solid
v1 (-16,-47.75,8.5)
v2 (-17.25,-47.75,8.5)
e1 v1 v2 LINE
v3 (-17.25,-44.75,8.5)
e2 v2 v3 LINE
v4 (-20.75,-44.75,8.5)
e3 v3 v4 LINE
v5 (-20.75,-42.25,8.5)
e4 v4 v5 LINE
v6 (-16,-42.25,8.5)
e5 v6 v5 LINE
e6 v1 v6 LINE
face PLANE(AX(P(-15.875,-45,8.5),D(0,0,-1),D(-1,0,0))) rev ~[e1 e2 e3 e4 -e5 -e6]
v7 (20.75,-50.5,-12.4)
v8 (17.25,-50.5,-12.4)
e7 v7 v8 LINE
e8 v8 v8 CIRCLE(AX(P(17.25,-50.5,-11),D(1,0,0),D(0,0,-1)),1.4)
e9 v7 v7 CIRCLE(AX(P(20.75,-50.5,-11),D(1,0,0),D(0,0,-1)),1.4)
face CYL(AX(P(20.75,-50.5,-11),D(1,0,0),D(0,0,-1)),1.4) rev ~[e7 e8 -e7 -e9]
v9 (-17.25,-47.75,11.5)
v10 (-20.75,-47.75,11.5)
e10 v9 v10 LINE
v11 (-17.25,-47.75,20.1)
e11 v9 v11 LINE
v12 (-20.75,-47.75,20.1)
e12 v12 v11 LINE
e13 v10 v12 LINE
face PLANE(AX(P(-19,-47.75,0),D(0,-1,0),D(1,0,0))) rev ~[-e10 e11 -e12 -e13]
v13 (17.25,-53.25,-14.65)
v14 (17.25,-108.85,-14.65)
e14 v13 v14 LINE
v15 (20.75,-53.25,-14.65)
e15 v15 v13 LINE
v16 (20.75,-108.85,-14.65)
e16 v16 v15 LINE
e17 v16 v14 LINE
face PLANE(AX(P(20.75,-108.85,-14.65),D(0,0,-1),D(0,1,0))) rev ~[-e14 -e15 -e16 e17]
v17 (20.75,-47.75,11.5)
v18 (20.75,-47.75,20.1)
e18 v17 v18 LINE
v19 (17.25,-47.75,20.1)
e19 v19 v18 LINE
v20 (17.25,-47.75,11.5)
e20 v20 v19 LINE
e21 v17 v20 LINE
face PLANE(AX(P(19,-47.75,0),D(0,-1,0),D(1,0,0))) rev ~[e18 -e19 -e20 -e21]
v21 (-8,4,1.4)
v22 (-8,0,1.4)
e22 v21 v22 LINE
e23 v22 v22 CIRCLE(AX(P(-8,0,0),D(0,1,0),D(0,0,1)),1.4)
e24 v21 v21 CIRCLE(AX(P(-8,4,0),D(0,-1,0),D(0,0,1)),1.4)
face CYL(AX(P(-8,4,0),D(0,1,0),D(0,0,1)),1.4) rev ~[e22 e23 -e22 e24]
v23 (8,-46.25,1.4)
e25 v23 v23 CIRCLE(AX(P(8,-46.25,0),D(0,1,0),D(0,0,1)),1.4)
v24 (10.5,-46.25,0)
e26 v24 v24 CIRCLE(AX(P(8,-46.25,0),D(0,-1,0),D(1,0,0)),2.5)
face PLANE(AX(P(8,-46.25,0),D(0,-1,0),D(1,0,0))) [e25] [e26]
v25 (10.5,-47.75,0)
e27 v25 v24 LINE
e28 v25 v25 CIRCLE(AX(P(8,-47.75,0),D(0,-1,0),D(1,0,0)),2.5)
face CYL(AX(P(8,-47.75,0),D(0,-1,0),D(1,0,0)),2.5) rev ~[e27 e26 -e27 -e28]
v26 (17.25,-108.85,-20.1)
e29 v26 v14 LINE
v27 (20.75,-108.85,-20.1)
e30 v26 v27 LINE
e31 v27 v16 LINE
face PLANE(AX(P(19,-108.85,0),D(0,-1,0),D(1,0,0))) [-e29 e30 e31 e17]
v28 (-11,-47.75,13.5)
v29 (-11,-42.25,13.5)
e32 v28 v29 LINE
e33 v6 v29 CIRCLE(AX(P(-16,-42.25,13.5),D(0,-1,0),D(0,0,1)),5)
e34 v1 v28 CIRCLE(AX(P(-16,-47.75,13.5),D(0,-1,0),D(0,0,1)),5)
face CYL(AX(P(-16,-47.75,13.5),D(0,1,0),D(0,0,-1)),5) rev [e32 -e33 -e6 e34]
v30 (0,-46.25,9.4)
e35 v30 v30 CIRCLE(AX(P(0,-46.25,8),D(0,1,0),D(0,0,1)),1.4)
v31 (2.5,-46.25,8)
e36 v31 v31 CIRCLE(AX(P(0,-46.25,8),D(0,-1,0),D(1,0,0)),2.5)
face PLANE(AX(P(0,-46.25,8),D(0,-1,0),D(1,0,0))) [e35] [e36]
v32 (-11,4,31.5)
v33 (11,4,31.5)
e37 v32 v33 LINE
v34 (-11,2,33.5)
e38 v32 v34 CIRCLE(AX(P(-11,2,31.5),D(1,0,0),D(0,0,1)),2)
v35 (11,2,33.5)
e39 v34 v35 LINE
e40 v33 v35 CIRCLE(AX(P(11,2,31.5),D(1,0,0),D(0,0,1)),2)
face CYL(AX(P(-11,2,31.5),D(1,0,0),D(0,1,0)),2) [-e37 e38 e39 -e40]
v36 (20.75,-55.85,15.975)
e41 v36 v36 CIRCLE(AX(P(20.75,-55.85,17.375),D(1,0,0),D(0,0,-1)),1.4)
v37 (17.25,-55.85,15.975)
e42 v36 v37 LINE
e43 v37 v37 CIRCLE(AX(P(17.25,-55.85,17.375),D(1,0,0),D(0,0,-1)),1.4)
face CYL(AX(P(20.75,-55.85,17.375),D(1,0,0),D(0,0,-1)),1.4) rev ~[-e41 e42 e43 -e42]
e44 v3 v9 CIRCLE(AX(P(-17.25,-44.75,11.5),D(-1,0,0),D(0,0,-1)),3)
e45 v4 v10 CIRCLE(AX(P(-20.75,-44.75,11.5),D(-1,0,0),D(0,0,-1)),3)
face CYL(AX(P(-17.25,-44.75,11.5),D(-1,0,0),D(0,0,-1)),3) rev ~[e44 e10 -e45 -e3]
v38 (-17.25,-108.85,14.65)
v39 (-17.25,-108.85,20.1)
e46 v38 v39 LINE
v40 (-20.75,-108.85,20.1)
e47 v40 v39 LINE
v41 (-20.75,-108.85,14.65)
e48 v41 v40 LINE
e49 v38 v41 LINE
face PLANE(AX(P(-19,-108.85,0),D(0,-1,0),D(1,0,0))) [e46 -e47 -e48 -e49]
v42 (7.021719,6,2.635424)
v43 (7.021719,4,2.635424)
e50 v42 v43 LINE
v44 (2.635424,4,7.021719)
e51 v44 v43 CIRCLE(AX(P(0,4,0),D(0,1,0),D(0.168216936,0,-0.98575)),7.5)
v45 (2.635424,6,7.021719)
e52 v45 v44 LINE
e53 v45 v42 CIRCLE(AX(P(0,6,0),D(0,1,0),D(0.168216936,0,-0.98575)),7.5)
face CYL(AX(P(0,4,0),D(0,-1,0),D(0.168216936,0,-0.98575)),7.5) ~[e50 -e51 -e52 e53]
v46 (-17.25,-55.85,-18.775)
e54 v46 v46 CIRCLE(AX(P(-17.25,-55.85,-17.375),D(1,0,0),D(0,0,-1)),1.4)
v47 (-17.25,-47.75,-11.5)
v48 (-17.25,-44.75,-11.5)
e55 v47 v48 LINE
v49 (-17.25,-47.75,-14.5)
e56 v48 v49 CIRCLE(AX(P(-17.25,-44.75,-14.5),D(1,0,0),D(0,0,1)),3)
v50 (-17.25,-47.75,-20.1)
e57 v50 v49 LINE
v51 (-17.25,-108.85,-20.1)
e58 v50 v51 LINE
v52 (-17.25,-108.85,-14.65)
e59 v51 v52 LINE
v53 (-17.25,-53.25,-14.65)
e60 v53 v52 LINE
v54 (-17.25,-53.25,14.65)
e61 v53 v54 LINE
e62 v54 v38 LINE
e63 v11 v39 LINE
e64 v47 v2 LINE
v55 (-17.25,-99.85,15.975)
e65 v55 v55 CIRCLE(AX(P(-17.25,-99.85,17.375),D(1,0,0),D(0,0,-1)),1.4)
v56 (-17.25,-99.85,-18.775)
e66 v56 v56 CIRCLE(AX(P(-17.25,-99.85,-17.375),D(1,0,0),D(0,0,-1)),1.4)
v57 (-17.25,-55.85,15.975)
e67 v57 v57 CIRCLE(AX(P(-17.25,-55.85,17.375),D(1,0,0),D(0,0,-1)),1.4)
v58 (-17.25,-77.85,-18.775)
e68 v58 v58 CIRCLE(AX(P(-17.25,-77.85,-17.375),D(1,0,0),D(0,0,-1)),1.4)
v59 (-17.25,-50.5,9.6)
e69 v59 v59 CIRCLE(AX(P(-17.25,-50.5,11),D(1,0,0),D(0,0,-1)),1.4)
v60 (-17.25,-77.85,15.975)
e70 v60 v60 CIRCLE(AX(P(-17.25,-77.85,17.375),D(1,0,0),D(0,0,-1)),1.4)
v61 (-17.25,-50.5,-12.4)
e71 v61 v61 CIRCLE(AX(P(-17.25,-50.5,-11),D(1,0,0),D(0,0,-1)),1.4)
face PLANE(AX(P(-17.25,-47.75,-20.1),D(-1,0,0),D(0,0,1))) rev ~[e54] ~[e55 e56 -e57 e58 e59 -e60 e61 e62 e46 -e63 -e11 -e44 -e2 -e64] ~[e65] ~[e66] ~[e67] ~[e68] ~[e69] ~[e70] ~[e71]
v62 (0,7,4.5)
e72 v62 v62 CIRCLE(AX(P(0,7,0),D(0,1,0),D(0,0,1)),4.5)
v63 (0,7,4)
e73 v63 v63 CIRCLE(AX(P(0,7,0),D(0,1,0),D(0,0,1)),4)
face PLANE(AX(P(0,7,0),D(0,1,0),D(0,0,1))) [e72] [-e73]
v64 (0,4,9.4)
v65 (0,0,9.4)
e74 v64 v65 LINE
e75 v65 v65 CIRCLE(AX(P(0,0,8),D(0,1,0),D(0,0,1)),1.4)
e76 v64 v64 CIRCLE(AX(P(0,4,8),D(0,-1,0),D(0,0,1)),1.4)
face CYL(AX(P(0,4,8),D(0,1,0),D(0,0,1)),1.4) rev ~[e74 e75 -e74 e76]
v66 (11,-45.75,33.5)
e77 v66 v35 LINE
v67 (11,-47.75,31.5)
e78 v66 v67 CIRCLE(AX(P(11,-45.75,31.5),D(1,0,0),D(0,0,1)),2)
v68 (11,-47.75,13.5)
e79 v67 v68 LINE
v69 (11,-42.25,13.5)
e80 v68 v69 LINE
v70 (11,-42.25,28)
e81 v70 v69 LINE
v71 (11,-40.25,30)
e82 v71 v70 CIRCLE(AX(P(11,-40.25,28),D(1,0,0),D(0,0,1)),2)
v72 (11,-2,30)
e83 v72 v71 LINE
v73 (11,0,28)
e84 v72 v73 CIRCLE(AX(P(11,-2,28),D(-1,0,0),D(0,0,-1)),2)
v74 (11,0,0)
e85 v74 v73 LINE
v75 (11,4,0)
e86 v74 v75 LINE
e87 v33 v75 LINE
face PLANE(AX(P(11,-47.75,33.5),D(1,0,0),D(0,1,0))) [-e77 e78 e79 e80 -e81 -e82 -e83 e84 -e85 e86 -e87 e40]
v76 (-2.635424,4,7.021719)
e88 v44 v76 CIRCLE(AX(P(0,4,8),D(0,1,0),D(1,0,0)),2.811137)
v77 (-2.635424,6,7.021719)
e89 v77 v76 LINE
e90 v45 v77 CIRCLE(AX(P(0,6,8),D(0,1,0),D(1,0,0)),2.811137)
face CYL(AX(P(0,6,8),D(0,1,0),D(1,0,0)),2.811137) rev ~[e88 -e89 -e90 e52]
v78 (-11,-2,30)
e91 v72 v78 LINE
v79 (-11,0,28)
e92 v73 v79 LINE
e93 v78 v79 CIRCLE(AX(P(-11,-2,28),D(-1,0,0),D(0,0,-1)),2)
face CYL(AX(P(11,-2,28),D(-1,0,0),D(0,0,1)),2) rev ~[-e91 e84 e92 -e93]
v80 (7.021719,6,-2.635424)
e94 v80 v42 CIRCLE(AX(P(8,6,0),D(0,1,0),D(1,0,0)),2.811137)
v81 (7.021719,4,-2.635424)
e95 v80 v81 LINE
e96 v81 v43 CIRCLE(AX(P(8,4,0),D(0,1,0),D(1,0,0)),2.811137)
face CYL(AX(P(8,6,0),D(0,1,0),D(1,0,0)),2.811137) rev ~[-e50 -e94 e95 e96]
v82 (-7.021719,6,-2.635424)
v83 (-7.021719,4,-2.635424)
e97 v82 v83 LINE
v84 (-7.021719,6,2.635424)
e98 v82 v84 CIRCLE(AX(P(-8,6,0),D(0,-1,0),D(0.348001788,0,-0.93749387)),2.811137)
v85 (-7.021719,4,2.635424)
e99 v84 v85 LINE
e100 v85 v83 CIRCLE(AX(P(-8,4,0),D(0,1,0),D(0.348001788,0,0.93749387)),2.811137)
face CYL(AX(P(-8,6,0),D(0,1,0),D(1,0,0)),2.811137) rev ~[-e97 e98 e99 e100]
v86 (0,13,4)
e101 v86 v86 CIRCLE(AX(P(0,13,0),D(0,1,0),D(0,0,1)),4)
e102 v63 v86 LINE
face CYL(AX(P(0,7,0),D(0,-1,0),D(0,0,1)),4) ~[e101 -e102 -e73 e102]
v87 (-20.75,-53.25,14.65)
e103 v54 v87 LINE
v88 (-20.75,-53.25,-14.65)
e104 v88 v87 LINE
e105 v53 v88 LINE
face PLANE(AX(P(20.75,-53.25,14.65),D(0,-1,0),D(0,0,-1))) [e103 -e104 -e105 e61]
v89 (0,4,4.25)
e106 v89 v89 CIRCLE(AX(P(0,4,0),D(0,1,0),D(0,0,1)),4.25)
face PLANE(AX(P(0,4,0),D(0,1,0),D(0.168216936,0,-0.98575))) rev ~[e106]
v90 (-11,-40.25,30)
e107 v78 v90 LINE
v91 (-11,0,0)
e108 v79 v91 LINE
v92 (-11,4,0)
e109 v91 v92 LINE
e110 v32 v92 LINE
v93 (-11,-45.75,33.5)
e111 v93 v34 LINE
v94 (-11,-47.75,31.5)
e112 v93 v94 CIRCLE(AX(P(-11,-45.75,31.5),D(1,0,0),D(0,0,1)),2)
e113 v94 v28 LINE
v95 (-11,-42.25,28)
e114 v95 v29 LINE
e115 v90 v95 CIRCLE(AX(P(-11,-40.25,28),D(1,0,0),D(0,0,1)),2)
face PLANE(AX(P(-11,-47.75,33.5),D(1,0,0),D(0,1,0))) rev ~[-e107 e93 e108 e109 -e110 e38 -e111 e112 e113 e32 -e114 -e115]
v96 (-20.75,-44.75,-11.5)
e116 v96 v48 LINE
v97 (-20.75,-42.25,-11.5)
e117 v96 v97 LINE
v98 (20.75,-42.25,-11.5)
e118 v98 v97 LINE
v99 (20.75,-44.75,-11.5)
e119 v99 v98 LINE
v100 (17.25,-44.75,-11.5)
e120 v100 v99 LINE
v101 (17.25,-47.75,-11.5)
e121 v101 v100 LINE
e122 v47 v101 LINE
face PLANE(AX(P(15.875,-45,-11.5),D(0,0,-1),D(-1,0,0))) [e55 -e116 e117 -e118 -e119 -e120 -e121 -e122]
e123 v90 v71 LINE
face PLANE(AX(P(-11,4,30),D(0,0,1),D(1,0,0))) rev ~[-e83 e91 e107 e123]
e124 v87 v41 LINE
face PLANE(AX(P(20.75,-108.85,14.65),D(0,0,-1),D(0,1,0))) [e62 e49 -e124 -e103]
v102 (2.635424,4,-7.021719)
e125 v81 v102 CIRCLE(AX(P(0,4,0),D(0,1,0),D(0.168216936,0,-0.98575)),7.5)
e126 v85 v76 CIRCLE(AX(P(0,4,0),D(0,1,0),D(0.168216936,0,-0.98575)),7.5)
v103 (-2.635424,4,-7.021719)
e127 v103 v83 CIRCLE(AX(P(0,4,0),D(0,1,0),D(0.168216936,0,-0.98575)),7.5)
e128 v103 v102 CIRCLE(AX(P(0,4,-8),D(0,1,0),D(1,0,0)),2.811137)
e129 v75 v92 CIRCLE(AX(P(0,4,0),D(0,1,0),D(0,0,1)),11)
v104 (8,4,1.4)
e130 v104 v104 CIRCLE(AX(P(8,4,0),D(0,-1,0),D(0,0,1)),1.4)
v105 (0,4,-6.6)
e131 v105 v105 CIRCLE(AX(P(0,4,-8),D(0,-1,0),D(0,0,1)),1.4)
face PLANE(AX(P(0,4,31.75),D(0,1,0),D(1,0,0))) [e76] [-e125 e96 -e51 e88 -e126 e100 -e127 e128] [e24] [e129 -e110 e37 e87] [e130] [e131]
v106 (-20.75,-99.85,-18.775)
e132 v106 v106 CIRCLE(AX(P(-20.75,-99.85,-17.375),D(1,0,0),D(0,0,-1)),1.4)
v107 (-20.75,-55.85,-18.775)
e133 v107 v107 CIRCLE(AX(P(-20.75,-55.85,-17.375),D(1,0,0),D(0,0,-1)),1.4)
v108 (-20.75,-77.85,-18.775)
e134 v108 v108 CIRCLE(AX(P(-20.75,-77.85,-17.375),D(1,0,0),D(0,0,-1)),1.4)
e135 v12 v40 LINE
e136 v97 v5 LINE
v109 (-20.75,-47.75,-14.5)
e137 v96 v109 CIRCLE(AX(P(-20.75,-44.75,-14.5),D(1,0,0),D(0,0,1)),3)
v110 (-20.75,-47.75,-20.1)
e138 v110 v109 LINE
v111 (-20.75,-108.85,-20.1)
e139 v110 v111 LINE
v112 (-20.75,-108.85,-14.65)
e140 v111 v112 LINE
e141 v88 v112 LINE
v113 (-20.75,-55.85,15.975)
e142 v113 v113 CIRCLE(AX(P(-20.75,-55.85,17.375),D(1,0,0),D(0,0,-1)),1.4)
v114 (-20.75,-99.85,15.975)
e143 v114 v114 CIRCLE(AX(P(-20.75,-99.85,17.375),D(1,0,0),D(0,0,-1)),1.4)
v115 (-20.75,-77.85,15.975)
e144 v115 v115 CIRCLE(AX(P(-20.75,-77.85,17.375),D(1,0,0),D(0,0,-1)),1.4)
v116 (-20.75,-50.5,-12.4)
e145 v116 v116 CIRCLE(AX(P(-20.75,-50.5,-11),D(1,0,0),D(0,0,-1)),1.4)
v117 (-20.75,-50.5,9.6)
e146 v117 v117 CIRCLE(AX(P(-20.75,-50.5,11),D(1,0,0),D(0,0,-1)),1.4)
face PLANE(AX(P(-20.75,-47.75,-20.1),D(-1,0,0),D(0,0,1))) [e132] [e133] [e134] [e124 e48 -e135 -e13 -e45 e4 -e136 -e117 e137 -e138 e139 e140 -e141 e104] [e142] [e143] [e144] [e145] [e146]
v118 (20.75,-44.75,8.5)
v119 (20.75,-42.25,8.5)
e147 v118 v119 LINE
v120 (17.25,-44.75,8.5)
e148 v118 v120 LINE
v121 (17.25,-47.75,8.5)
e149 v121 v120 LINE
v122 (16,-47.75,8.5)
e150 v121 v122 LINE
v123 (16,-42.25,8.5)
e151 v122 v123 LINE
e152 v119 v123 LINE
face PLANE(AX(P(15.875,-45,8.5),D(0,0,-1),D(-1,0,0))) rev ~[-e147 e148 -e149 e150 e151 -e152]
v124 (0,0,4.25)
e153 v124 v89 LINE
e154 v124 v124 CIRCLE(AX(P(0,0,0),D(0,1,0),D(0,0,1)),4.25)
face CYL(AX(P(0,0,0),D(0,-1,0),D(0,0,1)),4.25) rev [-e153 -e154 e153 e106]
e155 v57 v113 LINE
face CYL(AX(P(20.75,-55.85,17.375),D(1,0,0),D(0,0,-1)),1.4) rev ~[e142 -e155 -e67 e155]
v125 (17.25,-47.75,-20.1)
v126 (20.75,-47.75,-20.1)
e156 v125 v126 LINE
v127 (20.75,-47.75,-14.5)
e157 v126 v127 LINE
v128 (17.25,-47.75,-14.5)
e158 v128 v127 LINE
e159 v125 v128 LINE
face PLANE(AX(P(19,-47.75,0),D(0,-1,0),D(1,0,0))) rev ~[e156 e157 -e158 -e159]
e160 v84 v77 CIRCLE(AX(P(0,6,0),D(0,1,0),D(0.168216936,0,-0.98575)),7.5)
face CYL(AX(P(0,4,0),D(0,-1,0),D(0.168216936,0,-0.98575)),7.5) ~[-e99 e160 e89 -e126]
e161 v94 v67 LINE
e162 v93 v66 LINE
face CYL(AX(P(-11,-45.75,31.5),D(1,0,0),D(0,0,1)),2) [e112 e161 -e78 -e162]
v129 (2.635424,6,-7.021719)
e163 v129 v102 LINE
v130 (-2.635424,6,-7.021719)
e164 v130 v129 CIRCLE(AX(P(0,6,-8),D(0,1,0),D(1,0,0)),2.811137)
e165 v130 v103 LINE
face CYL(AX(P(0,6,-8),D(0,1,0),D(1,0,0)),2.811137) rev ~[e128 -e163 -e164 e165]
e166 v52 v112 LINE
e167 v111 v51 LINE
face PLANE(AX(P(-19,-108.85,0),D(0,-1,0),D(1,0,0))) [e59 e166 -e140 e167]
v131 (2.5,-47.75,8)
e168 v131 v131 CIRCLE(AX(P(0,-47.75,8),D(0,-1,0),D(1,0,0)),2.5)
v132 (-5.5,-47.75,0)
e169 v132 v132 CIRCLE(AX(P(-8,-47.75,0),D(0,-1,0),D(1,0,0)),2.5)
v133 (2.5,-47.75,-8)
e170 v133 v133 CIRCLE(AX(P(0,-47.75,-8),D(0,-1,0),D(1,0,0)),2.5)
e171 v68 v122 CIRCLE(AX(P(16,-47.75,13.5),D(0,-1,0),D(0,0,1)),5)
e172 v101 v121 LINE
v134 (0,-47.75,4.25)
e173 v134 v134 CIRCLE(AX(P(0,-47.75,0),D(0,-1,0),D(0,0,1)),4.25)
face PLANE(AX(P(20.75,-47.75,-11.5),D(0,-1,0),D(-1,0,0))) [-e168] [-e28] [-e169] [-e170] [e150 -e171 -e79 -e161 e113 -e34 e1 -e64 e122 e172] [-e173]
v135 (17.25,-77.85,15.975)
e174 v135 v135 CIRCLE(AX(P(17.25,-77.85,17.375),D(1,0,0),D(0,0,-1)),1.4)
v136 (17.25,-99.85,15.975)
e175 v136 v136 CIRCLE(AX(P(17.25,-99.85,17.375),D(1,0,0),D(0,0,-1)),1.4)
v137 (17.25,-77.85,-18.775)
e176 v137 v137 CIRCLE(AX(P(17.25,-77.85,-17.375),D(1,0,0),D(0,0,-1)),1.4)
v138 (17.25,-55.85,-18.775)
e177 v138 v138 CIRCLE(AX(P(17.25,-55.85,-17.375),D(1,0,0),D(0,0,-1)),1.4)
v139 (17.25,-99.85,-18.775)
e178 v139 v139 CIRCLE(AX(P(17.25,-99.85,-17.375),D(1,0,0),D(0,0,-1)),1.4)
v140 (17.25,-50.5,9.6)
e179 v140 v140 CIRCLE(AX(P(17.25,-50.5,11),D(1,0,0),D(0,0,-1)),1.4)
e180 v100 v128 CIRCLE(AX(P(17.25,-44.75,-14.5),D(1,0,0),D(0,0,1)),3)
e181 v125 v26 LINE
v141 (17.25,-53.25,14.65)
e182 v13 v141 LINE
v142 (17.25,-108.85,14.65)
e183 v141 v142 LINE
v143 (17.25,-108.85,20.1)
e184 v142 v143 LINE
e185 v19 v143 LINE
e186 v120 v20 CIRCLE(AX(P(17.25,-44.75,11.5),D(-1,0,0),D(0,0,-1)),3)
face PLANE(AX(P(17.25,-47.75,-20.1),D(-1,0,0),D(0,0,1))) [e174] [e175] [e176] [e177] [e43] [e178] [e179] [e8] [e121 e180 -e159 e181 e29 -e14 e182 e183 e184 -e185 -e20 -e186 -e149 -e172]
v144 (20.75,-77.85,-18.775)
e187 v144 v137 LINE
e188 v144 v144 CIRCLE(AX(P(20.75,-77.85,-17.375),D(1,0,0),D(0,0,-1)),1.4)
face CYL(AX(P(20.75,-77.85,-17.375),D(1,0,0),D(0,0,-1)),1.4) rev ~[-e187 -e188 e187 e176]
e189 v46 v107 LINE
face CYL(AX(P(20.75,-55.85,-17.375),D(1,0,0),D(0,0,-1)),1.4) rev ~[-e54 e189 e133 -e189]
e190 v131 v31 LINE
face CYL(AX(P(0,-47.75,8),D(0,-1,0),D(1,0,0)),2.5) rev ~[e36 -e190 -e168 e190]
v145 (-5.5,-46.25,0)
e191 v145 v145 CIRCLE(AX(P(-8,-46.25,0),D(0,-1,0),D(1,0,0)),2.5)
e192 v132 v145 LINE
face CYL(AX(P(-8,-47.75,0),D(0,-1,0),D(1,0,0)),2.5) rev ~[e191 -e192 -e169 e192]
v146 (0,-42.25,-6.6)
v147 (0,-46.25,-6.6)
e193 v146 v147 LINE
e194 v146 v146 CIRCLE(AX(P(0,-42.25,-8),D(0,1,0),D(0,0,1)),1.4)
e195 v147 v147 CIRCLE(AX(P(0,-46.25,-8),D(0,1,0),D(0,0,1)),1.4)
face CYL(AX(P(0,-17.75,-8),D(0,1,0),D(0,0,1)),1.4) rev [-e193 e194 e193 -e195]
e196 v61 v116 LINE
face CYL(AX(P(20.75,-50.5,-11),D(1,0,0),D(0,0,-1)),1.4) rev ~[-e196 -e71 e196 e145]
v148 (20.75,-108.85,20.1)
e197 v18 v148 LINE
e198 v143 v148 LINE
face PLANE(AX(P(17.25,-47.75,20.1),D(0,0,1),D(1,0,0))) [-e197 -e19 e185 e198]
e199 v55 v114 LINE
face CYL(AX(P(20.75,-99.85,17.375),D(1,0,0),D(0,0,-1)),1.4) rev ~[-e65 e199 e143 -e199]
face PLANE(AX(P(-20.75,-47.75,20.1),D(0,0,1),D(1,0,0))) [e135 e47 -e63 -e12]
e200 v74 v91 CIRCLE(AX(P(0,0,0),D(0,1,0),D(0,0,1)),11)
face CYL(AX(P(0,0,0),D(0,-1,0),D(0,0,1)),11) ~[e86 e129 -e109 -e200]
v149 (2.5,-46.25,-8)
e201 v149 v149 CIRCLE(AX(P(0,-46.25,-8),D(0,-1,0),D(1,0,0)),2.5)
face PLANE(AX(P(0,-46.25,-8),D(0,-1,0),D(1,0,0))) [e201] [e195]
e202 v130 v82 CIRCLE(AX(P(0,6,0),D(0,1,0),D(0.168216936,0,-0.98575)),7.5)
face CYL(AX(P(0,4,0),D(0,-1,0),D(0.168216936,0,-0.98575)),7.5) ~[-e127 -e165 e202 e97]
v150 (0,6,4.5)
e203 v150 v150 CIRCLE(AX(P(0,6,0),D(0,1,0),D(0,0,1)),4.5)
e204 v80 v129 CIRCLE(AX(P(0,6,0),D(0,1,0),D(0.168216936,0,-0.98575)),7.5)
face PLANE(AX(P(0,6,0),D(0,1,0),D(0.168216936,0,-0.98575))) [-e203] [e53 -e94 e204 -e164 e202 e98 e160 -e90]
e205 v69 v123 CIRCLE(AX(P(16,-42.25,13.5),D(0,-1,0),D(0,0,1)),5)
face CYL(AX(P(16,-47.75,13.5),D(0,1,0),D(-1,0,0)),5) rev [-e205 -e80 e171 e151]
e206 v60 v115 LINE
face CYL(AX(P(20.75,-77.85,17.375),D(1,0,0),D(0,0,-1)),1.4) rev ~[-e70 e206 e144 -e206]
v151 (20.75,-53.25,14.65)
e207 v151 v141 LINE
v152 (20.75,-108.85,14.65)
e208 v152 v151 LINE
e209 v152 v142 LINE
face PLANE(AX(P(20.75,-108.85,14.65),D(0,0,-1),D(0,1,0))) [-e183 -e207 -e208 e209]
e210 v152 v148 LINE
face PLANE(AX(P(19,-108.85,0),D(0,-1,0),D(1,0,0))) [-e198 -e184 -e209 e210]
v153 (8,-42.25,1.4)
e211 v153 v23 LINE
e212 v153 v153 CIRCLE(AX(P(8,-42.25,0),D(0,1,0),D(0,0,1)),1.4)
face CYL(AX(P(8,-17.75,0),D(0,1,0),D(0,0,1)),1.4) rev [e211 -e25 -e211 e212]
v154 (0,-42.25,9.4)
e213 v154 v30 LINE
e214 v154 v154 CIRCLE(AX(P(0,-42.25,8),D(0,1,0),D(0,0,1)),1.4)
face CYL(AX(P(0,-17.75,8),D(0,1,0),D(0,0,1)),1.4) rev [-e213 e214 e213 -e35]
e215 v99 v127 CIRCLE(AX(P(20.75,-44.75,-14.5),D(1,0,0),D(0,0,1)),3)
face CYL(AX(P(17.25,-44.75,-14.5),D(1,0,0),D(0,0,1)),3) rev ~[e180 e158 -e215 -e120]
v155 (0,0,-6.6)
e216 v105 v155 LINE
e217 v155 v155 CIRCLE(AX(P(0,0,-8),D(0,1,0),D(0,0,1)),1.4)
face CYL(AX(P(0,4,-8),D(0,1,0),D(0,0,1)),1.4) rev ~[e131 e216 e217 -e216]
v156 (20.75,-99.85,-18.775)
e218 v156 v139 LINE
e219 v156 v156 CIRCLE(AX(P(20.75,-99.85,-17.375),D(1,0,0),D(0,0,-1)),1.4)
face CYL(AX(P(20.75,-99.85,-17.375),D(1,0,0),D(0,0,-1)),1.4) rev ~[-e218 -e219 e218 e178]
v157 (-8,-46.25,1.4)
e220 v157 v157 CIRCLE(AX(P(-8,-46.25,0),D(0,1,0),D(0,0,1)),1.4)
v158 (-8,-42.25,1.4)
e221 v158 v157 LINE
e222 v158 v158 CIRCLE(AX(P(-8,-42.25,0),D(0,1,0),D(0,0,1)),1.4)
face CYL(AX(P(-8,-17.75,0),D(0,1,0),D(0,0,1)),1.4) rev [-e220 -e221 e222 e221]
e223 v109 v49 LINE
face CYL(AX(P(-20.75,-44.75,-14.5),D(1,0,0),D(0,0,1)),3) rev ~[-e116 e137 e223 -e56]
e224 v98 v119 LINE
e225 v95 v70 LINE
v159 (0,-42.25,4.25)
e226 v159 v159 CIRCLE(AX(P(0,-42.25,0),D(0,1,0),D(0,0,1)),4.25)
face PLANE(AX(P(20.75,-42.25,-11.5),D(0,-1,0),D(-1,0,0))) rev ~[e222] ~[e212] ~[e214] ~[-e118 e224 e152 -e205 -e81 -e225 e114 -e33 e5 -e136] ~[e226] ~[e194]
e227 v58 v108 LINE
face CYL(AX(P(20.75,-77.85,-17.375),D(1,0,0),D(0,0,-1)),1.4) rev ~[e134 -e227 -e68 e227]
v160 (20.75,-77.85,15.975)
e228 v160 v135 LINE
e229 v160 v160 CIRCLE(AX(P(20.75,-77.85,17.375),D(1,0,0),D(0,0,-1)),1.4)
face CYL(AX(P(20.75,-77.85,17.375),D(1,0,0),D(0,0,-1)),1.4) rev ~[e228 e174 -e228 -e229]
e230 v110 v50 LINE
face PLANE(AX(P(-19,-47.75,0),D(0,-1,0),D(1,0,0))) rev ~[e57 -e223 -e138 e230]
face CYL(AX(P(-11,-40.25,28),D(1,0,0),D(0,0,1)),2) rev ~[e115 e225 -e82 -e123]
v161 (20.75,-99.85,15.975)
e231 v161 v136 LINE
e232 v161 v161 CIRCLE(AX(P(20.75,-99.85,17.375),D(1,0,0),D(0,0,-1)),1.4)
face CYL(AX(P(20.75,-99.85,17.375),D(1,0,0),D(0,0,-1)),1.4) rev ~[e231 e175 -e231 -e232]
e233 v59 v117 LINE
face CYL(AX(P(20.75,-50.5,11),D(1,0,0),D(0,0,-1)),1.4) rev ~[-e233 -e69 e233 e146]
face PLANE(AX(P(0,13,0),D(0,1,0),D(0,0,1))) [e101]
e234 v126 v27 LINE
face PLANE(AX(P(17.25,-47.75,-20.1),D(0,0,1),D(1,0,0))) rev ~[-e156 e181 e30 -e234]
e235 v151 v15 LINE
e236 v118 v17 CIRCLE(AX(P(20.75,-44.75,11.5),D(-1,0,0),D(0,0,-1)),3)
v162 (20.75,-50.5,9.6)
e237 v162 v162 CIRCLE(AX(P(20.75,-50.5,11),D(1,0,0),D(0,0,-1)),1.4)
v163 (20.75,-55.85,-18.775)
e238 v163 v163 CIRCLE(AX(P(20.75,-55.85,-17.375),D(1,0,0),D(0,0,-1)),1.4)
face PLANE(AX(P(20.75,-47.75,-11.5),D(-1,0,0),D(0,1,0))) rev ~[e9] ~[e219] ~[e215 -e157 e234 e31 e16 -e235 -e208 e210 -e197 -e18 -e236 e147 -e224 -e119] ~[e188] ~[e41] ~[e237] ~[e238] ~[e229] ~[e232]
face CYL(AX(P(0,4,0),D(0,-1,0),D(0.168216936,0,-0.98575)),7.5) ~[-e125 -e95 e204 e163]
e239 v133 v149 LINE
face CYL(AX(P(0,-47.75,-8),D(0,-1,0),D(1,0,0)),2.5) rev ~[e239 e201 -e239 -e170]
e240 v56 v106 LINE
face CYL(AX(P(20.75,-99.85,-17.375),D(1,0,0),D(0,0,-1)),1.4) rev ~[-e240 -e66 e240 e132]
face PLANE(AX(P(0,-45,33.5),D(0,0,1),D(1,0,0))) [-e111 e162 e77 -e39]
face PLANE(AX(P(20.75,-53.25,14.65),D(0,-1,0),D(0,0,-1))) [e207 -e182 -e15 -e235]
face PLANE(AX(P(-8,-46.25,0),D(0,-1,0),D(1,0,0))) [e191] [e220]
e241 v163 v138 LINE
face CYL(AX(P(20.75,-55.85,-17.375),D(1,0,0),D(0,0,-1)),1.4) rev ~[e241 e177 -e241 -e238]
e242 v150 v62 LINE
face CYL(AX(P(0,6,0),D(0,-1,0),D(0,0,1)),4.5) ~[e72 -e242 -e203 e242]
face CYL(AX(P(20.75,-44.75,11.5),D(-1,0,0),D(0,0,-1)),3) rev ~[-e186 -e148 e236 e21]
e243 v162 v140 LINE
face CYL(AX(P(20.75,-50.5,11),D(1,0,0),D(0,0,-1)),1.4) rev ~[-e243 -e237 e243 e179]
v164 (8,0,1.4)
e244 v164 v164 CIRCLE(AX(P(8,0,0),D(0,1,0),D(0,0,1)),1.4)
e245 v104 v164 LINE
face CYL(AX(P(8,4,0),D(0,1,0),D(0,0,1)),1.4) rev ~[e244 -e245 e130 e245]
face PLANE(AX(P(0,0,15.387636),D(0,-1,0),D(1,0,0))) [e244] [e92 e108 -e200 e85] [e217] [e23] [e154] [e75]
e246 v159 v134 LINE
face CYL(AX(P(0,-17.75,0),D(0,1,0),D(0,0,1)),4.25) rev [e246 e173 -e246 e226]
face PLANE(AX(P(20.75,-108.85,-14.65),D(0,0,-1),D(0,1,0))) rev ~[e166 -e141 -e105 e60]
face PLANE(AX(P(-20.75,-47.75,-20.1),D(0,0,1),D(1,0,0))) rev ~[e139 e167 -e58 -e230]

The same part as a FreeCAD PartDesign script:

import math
import FreeCAD as App
import Part
import Sketcher

V = App.Vector


def edges_at(feature, points):
    """Names of the edges that pass closest to the given points."""
    edges = feature.Shape.Edges
    near = lambda p: min(range(len(edges)), key=lambda i: edges[i].distToShape(Part.Vertex(*p))[0])
    return sorted({f"Edge{near(p) + 1}" for p in points})

doc = App.newDocument("Part")
params = doc.addObject("Spreadsheet::Sheet", "Params")
for row, (alias, value) in enumerate([
    ("sketch1_diameter", "22 mm"),
    ("sketch1_diameter2", "8.5 mm"),
    ("pad1_length", "4 mm"),
    ("sketch2_diameter", "2.8 mm"),
    ("sketch3_diameter", "15 mm"),
    ("pad2_length", "2 mm"),
    ("pocket2_length", "2 mm"),
    ("sketch5_diameter", "9 mm"),
    ("pad3_length", "7 mm"),
    ("sketch6_diameter", "9 mm"),
    ("sketch6_diameter2", "8 mm"),
    ("pocket3_length", "6 mm"),
    ("sketch7_radius", "11 mm"),
    ("sketch7_height", "30 mm"),
    ("pad4_length", "4 mm"),
    ("sketch8_width", "22 mm"),
    ("sketch8_height", "3.5 mm"),
    ("pad5_length", "46.25 mm"),
    ("sketch9_width", "22 mm"),
    ("sketch9_height", "5.5 mm"),
    ("pad6_length", "45 mm"),
    ("sketch10_diameter", "8.5 mm"),
    ("sketch10_diameter2", "2.8 mm"),
    ("pocket4_length", "30 mm"),
    ("sketch11_height", "5.5 mm"),
    ("sketch11_width", "9.75 mm"),
    ("pad7_length", "20 mm"),
    ("fillet_radius", "2 mm"),
    ("sketch12_diameter", "5 mm"),
    ("pocket5_length", "1.5 mm"),
    ("sketch13_width", "3.5 mm"),
    ("sketch13_height", "40.2 mm"),
    ("pad8_length", "61.1 mm"),
    ("sketch14_diameter", "2.8 mm"),
    ("sketch14_width", "55.6 mm"),
    ("sketch14_height", "29.3 mm"),
    ("pocket6_length", "61.1 mm"),
    ("fillet2_radius", "5 mm"),
    ("fillet3_radius", "3 mm"),
], start=1):
    params.set(f"A{row}", alias)
    params.set(f"B{row}", "=" + value)
    params.setAlias(f"B{row}", alias)

body = doc.addObject("PartDesign::Body", "Body")

# Sketch on XZ plane
sketch1 = body.newObject("Sketcher::SketchObject", "Sketch")
sketch1.AttachmentSupport = (doc.getObject("XZ_Plane"), [""])
sketch1.MapMode = "FlatFace"
sketch1.addGeometry([
    Part.Circle(V(0, 0, 0), V(0, 0, 1), 11),
    Part.Circle(V(0, 0, 0), V(0, 0, 1), 4.2),
], False)
sketch1.addConstraint([
    Sketcher.Constraint("Coincident", 0, 3, -1, 1),
    Sketcher.Constraint("Coincident", 1, 3, -1, 1),
    Sketcher.Constraint("Diameter", 0, 22.0),
    Sketcher.Constraint("Diameter", 1, 8.5),
])
sketch1.setExpression("Constraints[2]", "Params.sketch1_diameter")
sketch1.setExpression("Constraints[3]", "Params.sketch1_diameter2")
pad1 = body.newObject("PartDesign::Pad", "Pad")
pad1.Profile = sketch1
pad1.setExpression("Length", "Params.pad1_length")
pad1.Reversed = True

# Sketch on XZ plane
sketch2 = body.newObject("Sketcher::SketchObject", "Sketch001")
sketch2.AttachmentSupport = (doc.getObject("XZ_Plane"), [""])
sketch2.MapMode = "FlatFace"
sketch2.AttachmentOffset = App.Placement(V(0, 0, -4), App.Rotation())
sketch2.addGeometry([
    Part.Circle(V(0, -8, 0), V(0, 0, 1), 1.4),
    Part.Circle(V(8, 0, 0), V(0, 0, 1), 1.4),
    Part.Circle(V(0, 8, 0), V(0, 0, 1), 1.4),
    Part.Circle(V(-8, 0, 0), V(0, 0, 1), 1.4),
], False)
sketch2.addConstraint([
    Sketcher.Constraint("Equal", 0, 1),
    Sketcher.Constraint("Equal", 1, 2),
    Sketcher.Constraint("Equal", 2, 3),
    Sketcher.Constraint("Symmetric", 0, 3, 2, 3, -1, 1),
    Sketcher.Constraint("Symmetric", 1, 3, 3, 3, -1, 1),
    Sketcher.Constraint("PointOnObject", 0, 3, -2),
    Sketcher.Constraint("PointOnObject", 1, 3, -1),
    Sketcher.Constraint("Diameter", 0, 2.8),
    Sketcher.Constraint("DistanceY", 0, 3, -1, 1, 8.0),
    Sketcher.Constraint("DistanceX", -1, 1, 1, 3, 8.0),
])
sketch2.setExpression("Constraints[7]", "Params.sketch2_diameter")
pocket1 = body.newObject("PartDesign::Pocket", "Pocket")
pocket1.Profile = sketch2
pocket1.Type = "ThroughAll"
pocket1.Reversed = True

# Sketch on XZ plane
sketch3 = body.newObject("Sketcher::SketchObject", "Sketch002")
sketch3.AttachmentSupport = (doc.getObject("XZ_Plane"), [""])
sketch3.MapMode = "FlatFace"
sketch3.AttachmentOffset = App.Placement(V(0, 0, -4), App.Rotation())
sketch3.addGeometry(Part.Circle(V(0, 0, 0), V(0, 0, 1), 8), False)
sketch3.addConstraint([
    Sketcher.Constraint("Coincident", 0, 3, -1, 1),
    Sketcher.Constraint("Diameter", 0, 15.0),
])
sketch3.setExpression("Constraints[1]", "Params.sketch3_diameter")
pad2 = body.newObject("PartDesign::Pad", "Pad001")
pad2.Profile = sketch3
pad2.setExpression("Length", "Params.pad2_length")
pad2.Reversed = True

# Sketch on XZ plane
sketch4 = body.newObject("Sketcher::SketchObject", "Sketch003")
sketch4.AttachmentSupport = (doc.getObject("XZ_Plane"), [""])
sketch4.MapMode = "FlatFace"
sketch4.AttachmentOffset = App.Placement(V(0, 0, -6), App.Rotation())
sketch4.addGeometry([
    Part.Circle(V(8, 0, 0), V(0, 0, 1), 2.8),
    Part.Circle(V(0, 8, 0), V(0, 0, 1), 2.8),
    Part.Circle(V(-8, 0, 0), V(0, 0, 1), 2.8),
    Part.Circle(V(0, -8, 0), V(0, 0, 1), 2.8),
], False)
sketch4.addConstraint([
    Sketcher.Constraint("Equal", 0, 1),
    Sketcher.Constraint("Equal", 1, 2),
    Sketcher.Constraint("Equal", 2, 3),
    Sketcher.Constraint("Symmetric", 0, 3, 2, 3, -1, 1),
    Sketcher.Constraint("Symmetric", 1, 3, 3, 3, -1, 1),
    Sketcher.Constraint("PointOnObject", 0, 3, -1),
    Sketcher.Constraint("PointOnObject", 1, 3, -2),
    Sketcher.Constraint("DistanceX", -1, 1, 0, 3, 8.0),
    Sketcher.Constraint("DistanceY", -1, 1, 1, 3, 8.0),
    Sketcher.Constraint("Diameter", 0, 5.622274),
])
pocket2 = body.newObject("PartDesign::Pocket", "Pocket001")
pocket2.Profile = sketch4
pocket2.setExpression("Length", "Params.pocket2_length")
pocket2.Reversed = True

# Sketch on XZ plane
sketch5 = body.newObject("Sketcher::SketchObject", "Sketch004")
sketch5.AttachmentSupport = (doc.getObject("XZ_Plane"), [""])
sketch5.MapMode = "FlatFace"
sketch5.AttachmentOffset = App.Placement(V(0, 0, -6), App.Rotation())
sketch5.addGeometry(Part.Circle(V(0, 0, 0), V(0, 0, 1), 4.5), False)
sketch5.addConstraint([
    Sketcher.Constraint("Coincident", 0, 3, -1, 1),
    Sketcher.Constraint("Diameter", 0, 9.0),
])
sketch5.setExpression("Constraints[1]", "Params.sketch5_diameter")
pad3 = body.newObject("PartDesign::Pad", "Pad002")
pad3.Profile = sketch5
pad3.setExpression("Length", "Params.pad3_length")
pad3.Reversed = True

# Sketch on XZ plane
sketch6 = body.newObject("Sketcher::SketchObject", "Sketch005")
sketch6.AttachmentSupport = (doc.getObject("XZ_Plane"), [""])
sketch6.MapMode = "FlatFace"
sketch6.AttachmentOffset = App.Placement(V(0, 0, -7), App.Rotation())
sketch6.addGeometry([
    Part.Circle(V(0, 0, 0), V(0, 0, 1), 4.5),
    Part.Circle(V(0, 0, 0), V(0, 0, 1), 4),
], False)
sketch6.addConstraint([
    Sketcher.Constraint("Coincident", 0, 3, -1, 1),
    Sketcher.Constraint("Coincident", 1, 3, -1, 1),
    Sketcher.Constraint("Diameter", 0, 9.0),
    Sketcher.Constraint("Diameter", 1, 8.0),
])
sketch6.setExpression("Constraints[2]", "Params.sketch6_diameter")
sketch6.setExpression("Constraints[3]", "Params.sketch6_diameter2")
pocket3 = body.newObject("PartDesign::Pocket", "Pocket002")
pocket3.Profile = sketch6
pocket3.setExpression("Length", "Params.pocket3_length")

# Sketch on XZ plane
sketch7 = body.newObject("Sketcher::SketchObject", "Sketch006")
sketch7.AttachmentSupport = (doc.getObject("XZ_Plane"), [""])
sketch7.MapMode = "FlatFace"
sketch7.addGeometry([
    Part.LineSegment(V(11, 30, 0), V(-11, 30, 0)),
    Part.LineSegment(V(-11, 30, 0), V(-11, 0, 0)),
    Part.ArcOfCircle(Part.Circle(V(0, 0, 0), V(0, 0, 1), 11), math.radians(0), math.radians(180)),
    Part.LineSegment(V(11, 0, 0), V(11, 30, 0)),
], False)
sketch7.addConstraint([
    Sketcher.Constraint("Coincident", 0, 2, 1, 1),
    Sketcher.Constraint("Tangent", 1, 2, 2, 2),
    Sketcher.Constraint("Tangent", 2, 1, 3, 1),
    Sketcher.Constraint("Coincident", 3, 2, 0, 1),
    Sketcher.Constraint("Horizontal", 0),
    Sketcher.Constraint("Vertical", 1),
    Sketcher.Constraint("Vertical", 3),
    Sketcher.Constraint("Coincident", 2, 3, -1, 1),
    Sketcher.Constraint("Radius", 2, 11.0),
    Sketcher.Constraint("DistanceY", 1, 2, 1, 1, 30.0),
])
sketch7.setExpression("Constraints[8]", "Params.sketch7_radius")
sketch7.setExpression("Constraints[9]", "Params.sketch7_height")
pad4 = body.newObject("PartDesign::Pad", "Pad003")
pad4.Profile = sketch7
pad4.setExpression("Length", "Params.pad4_length")
pad4.Reversed = True

# Sketch on XZ plane
sketch8 = body.newObject("Sketcher::SketchObject", "Sketch007")
sketch8.AttachmentSupport = (doc.getObject("XZ_Plane"), [""])
sketch8.MapMode = "FlatFace"
sketch8.AttachmentOffset = App.Placement(V(0, 0, -4), App.Rotation())
sketch8.addGeometry([
    Part.LineSegment(V(-11, 30, 0), V(-11, 33.5, 0)),
    Part.LineSegment(V(-11, 33.5, 0), V(11, 33.5, 0)),
    Part.LineSegment(V(11, 33.5, 0), V(11, 30, 0)),
    Part.LineSegment(V(11, 30, 0), V(-11, 30, 0)),
], False)
sketch8.addConstraint([
    Sketcher.Constraint("Coincident", 0, 2, 1, 1),
    Sketcher.Constraint("Coincident", 1, 2, 2, 1),
    Sketcher.Constraint("Coincident", 2, 2, 3, 1),
    Sketcher.Constraint("Coincident", 3, 2, 0, 1),
    Sketcher.Constraint("Vertical", 0),
    Sketcher.Constraint("Horizontal", 1),
    Sketcher.Constraint("Vertical", 2),
    Sketcher.Constraint("Horizontal", 3),
    Sketcher.Constraint("DistanceX", 1, 1, 1, 2, 22.0),
    Sketcher.Constraint("DistanceY", 0, 1, 0, 2, 3.5),
    Sketcher.Constraint("DistanceX", 0, 2, -1, 1, 11.0),
    Sketcher.Constraint("DistanceY", -1, 1, 2, 2, 30.0),
])
sketch8.setExpression("Constraints[8]", "Params.sketch8_width")
sketch8.setExpression("Constraints[9]", "Params.sketch8_height")
pad5 = body.newObject("PartDesign::Pad", "Pad004")
pad5.Profile = sketch8
pad5.setExpression("Length", "Params.pad5_length")

# Sketch on XY plane
sketch9 = body.newObject("Sketcher::SketchObject", "Sketch008")
sketch9.AttachmentSupport = (doc.getObject("XY_Plane"), [""])
sketch9.MapMode = "FlatFace"
sketch9.AttachmentOffset = App.Placement(V(0, 0, 33.5), App.Rotation())
sketch9.addGeometry([
    Part.LineSegment(V(-11, -42, 0), V(-11, -48, 0)),
    Part.LineSegment(V(-11, -48, 0), V(11, -48, 0)),
    Part.LineSegment(V(11, -48, 0), V(11, -42, 0)),
    Part.LineSegment(V(11, -42, 0), V(-11, -42, 0)),
], False)
sketch9.addConstraint([
    Sketcher.Constraint("Coincident", 0, 2, 1, 1),
    Sketcher.Constraint("Coincident", 1, 2, 2, 1),
    Sketcher.Constraint("Coincident", 2, 2, 3, 1),
    Sketcher.Constraint("Coincident", 3, 2, 0, 1),
    Sketcher.Constraint("Vertical", 0),
    Sketcher.Constraint("Horizontal", 1),
    Sketcher.Constraint("Vertical", 2),
    Sketcher.Constraint("Horizontal", 3),
    Sketcher.Constraint("DistanceX", 1, 1, 1, 2, 22.0),
    Sketcher.Constraint("DistanceY", 0, 2, 0, 1, 5.5),
    Sketcher.Constraint("DistanceX", 0, 2, -1, 1, 11.0),
    Sketcher.Constraint("DistanceY", 0, 2, -1, 1, 47.75),
])
sketch9.setExpression("Constraints[8]", "Params.sketch9_width")
sketch9.setExpression("Constraints[9]", "Params.sketch9_height")
pad6 = body.newObject("PartDesign::Pad", "Pad005")
pad6.Profile = sketch9
pad6.setExpression("Length", "Params.pad6_length")
pad6.Reversed = True

# Sketch on XZ plane
sketch10 = body.newObject("Sketcher::SketchObject", "Sketch009")
sketch10.AttachmentSupport = (doc.getObject("XZ_Plane"), [""])
sketch10.MapMode = "FlatFace"
sketch10.AttachmentOffset = App.Placement(V(0, 0, 17.75), App.Rotation())
sketch10.addGeometry([
    Part.Circle(V(0, 0, 0), V(0, 0, 1), 4.2),  # 0
    Part.Circle(V(-8, 0, 0), V(0, 0, 1), 1.4),  # 1
    Part.Circle(V(0, -8, 0), V(0, 0, 1), 1.4),  # 2
    Part.Circle(V(8, 0, 0), V(0, 0, 1), 1.4),  # 3
    Part.Circle(V(0, 8, 0), V(0, 0, 1), 1.4),  # 4
], False)
sketch10.addConstraint([
    Sketcher.Constraint("Coincident", 0, 3, -1, 1),
    Sketcher.Constraint("Equal", 1, 2),
    Sketcher.Constraint("Equal", 2, 3),
    Sketcher.Constraint("Equal", 3, 4),
    Sketcher.Constraint("Symmetric", 1, 3, 3, 3, -1, 1),
    Sketcher.Constraint("Symmetric", 2, 3, 4, 3, -1, 1),
    Sketcher.Constraint("PointOnObject", 1, 3, -1),
    Sketcher.Constraint("PointOnObject", 2, 3, -2),
    Sketcher.Constraint("Diameter", 0, 8.5),
    Sketcher.Constraint("Diameter", 1, 2.8),
    Sketcher.Constraint("DistanceX", 1, 3, -1, 1, 8.0),
    Sketcher.Constraint("DistanceY", 2, 3, -1, 1, 8.0),
])
sketch10.setExpression("Constraints[8]", "Params.sketch10_diameter")
sketch10.setExpression("Constraints[9]", "Params.sketch10_diameter2")
pocket4 = body.newObject("PartDesign::Pocket", "Pocket003")
pocket4.Profile = sketch10
pocket4.setExpression("Length", "Params.pocket4_length")
pocket4.Reversed = True

# Sketch on XY plane
sketch11 = body.newObject("Sketcher::SketchObject", "Sketch010")
sketch11.AttachmentSupport = (doc.getObject("XY_Plane"), [""])
sketch11.MapMode = "FlatFace"
sketch11.AttachmentOffset = App.Placement(V(0, 0, -11.5), App.Rotation())
sketch11.addGeometry([
    Part.LineSegment(V(21, -42, 0), V(21, -48, 0)),  # 0
    Part.LineSegment(V(21, -48, 0), V(11, -48, 0)),  # 1
    Part.LineSegment(V(11, -48, 0), V(11, -42, 0)),  # 2
    Part.LineSegment(V(11, -42, 0), V(21, -42, 0)),  # 3
    Part.LineSegment(V(-11, -42, 0), V(-11, -48, 0)),  # 4
    Part.LineSegment(V(-11, -48, 0), V(-21, -48, 0)),  # 5
    Part.LineSegment(V(-21, -48, 0), V(-21, -42, 0)),  # 6
    Part.LineSegment(V(-21, -42, 0), V(-11, -42, 0)),  # 7
], False)
sketch11.addConstraint([
    Sketcher.Constraint("Coincident", 0, 2, 1, 1),
    Sketcher.Constraint("Coincident", 1, 2, 2, 1),
    Sketcher.Constraint("Coincident", 2, 2, 3, 1),
    Sketcher.Constraint("Coincident", 3, 2, 0, 1),
    Sketcher.Constraint("Coincident", 4, 2, 5, 1),
    Sketcher.Constraint("Coincident", 5, 2, 6, 1),
    Sketcher.Constraint("Coincident", 6, 2, 7, 1),
    Sketcher.Constraint("Coincident", 7, 2, 4, 1),
    Sketcher.Constraint("Vertical", 0),
    Sketcher.Constraint("Horizontal", 1),
    Sketcher.Constraint("Vertical", 2),
    Sketcher.Constraint("Horizontal", 3),
    Sketcher.Constraint("Vertical", 4),
    Sketcher.Constraint("Horizontal", 5),
    Sketcher.Constraint("Vertical", 6),
    Sketcher.Constraint("Horizontal", 7),
    Sketcher.Constraint("Symmetric", 1, 2, 4, 2, -2),
    Sketcher.Constraint("Symmetric", 3, 2, 6, 2, -2),
    Sketcher.Constraint("DistanceY", 0, 2, 0, 1, 5.5),
    Sketcher.Constraint("DistanceX", -1, 1, 1, 2, 11.0),
    Sketcher.Constraint("DistanceX", 1, 2, 1, 1, 9.75),
    Sketcher.Constraint("DistanceY", 0, 2, -1, 1, 47.75),
])
sketch11.setExpression("Constraints[18]", "Params.sketch11_height")
sketch11.setExpression("Constraints[20]", "Params.sketch11_width")
pad7 = body.newObject("PartDesign::Pad", "Pad006")
pad7.Profile = sketch11
pad7.setExpression("Length", "Params.pad7_length")
doc.recompute()

fillet = body.newObject("PartDesign::Fillet", "Fillet")
fillet.Base = (pad7, edges_at(pad7, [
    (0, 0, 30),
    (0, -42.25, 30),
    (0, 4, 33.5),
    (0, -47.75, 33.5),
]))
fillet.setExpression("Radius", "Params.fillet_radius")

# Sketch on XZ plane
sketch12 = body.newObject("Sketcher::SketchObject", "Sketch011")
sketch12.AttachmentSupport = (doc.getObject("XZ_Plane"), [""])
sketch12.MapMode = "FlatFace"
sketch12.AttachmentOffset = App.Placement(V(0, 0, 47.75), App.Rotation())
sketch12.addGeometry([
    Part.Circle(V(-8, 0, 0), V(0, 0, 1), 2.5),
    Part.Circle(V(0, 8, 0), V(0, 0, 1), 2.5),
    Part.Circle(V(8, 0, 0), V(0, 0, 1), 2.5),
    Part.Circle(V(0, -8, 0), V(0, 0, 1), 2.5),
], False)
sketch12.addConstraint([
    Sketcher.Constraint("Equal", 0, 1),
    Sketcher.Constraint("Equal", 1, 2),
    Sketcher.Constraint("Equal", 2, 3),
    Sketcher.Constraint("Symmetric", 0, 3, 2, 3, -1, 1),
    Sketcher.Constraint("Symmetric", 1, 3, 3, 3, -1, 1),
    Sketcher.Constraint("PointOnObject", 0, 3, -1),
    Sketcher.Constraint("PointOnObject", 1, 3, -2),
    Sketcher.Constraint("Diameter", 0, 5.0),
    Sketcher.Constraint("DistanceX", 0, 3, -1, 1, 8.0),
    Sketcher.Constraint("DistanceY", -1, 1, 1, 3, 8.0),
])
sketch12.setExpression("Constraints[7]", "Params.sketch12_diameter")
pocket5 = body.newObject("PartDesign::Pocket", "Pocket004")
pocket5.Profile = sketch12
pocket5.setExpression("Length", "Params.pocket5_length")

# Sketch on XZ plane
sketch13 = body.newObject("Sketcher::SketchObject", "Sketch012")
sketch13.AttachmentSupport = (doc.getObject("XZ_Plane"), [""])
sketch13.MapMode = "FlatFace"
sketch13.AttachmentOffset = App.Placement(V(0, 0, 47.75), App.Rotation())
sketch13.addGeometry([
    Part.LineSegment(V(-20.8, 20.1, 0), V(-20.8, -20.1, 0)),  # 0
    Part.LineSegment(V(-20.8, -20.1, 0), V(-17.2, -20.1, 0)),  # 1
    Part.LineSegment(V(-17.2, -20.1, 0), V(-17.2, 20.1, 0)),  # 2
    Part.LineSegment(V(-17.2, 20.1, 0), V(-20.8, 20.1, 0)),  # 3
    Part.LineSegment(V(17.2, 20.1, 0), V(17.2, -20.1, 0)),  # 4
    Part.LineSegment(V(17.2, -20.1, 0), V(20.8, -20.1, 0)),  # 5
    Part.LineSegment(V(20.8, -20.1, 0), V(20.8, 20.1, 0)),  # 6
    Part.LineSegment(V(20.8, 20.1, 0), V(17.2, 20.1, 0)),  # 7
], False)
sketch13.addConstraint([
    Sketcher.Constraint("Coincident", 0, 2, 1, 1),
    Sketcher.Constraint("Coincident", 1, 2, 2, 1),
    Sketcher.Constraint("Coincident", 2, 2, 3, 1),
    Sketcher.Constraint("Coincident", 3, 2, 0, 1),
    Sketcher.Constraint("Coincident", 4, 2, 5, 1),
    Sketcher.Constraint("Coincident", 5, 2, 6, 1),
    Sketcher.Constraint("Coincident", 6, 2, 7, 1),
    Sketcher.Constraint("Coincident", 7, 2, 4, 1),
    Sketcher.Constraint("Vertical", 0),
    Sketcher.Constraint("Horizontal", 1),
    Sketcher.Constraint("Vertical", 2),
    Sketcher.Constraint("Horizontal", 3),
    Sketcher.Constraint("Vertical", 4),
    Sketcher.Constraint("Horizontal", 5),
    Sketcher.Constraint("Vertical", 6),
    Sketcher.Constraint("Horizontal", 7),
    Sketcher.Constraint("Symmetric", 2, 2, 4, 2, -1, 1),
    Sketcher.Constraint("Symmetric", 0, 2, 6, 2, -1, 1),
    Sketcher.Constraint("Horizontal", 1, 2, 4, 2),
    Sketcher.Constraint("DistanceX", 1, 1, 1, 2, 3.5),
    Sketcher.Constraint("DistanceY", 0, 2, 0, 1, 40.2),
    Sketcher.Constraint("DistanceX", 0, 2, 4, 2, 38.0),
])
sketch13.setExpression("Constraints[19]", "Params.sketch13_width")
sketch13.setExpression("Constraints[20]", "Params.sketch13_height")
pad8 = body.newObject("PartDesign::Pad", "Pad007")
pad8.Profile = sketch13
pad8.setExpression("Length", "Params.pad8_length")

# Sketch on YZ plane
sketch14 = body.newObject("Sketcher::SketchObject", "Sketch013")
sketch14.AttachmentSupport = (doc.getObject("YZ_Plane"), [""])
sketch14.MapMode = "FlatFace"
sketch14.AttachmentOffset = App.Placement(V(0, 0, 20.75), App.Rotation())
sketch14.addGeometry([
    Part.Circle(V(-50.5, 11, 0), V(0, 0, 1), 1.4),  # 0
    Part.Circle(V(-50.5, -11, 0), V(0, 0, 1), 1.4),  # 1
    Part.Circle(V(-99.8, 17.4, 0), V(0, 0, 1), 1.4),  # 2
    Part.Circle(V(-77.8, 17.4, 0), V(0, 0, 1), 1.4),  # 3
    Part.Circle(V(-55.9, 17.4, 0), V(0, 0, 1), 1.4),  # 4
    Part.Circle(V(-99.8, -17.4, 0), V(0, 0, 1), 1.4),  # 5
    Part.Circle(V(-77.8, -17.4, 0), V(0, 0, 1), 1.4),  # 6
    Part.Circle(V(-55.9, -17.4, 0), V(0, 0, 1), 1.4),  # 7
    Part.LineSegment(V(-53.2, 14.7, 0), V(-108.8, 14.7, 0)),  # 8
    Part.LineSegment(V(-108.8, 14.7, 0), V(-108.8, -14.7, 0)),  # 9
    Part.LineSegment(V(-108.8, -14.7, 0), V(-53.2, -14.7, 0)),  # 10
    Part.LineSegment(V(-53.2, -14.7, 0), V(-53.2, 14.7, 0)),  # 11
], False)
sketch14.addConstraint([
    Sketcher.Constraint("Coincident", 8, 2, 9, 1),
    Sketcher.Constraint("Coincident", 9, 2, 10, 1),
    Sketcher.Constraint("Coincident", 10, 2, 11, 1),
    Sketcher.Constraint("Coincident", 11, 2, 8, 1),
    Sketcher.Constraint("Horizontal", 8),
    Sketcher.Constraint("Vertical", 9),
    Sketcher.Constraint("Horizontal", 10),
    Sketcher.Constraint("Vertical", 11),
    Sketcher.Constraint("Equal", 0, 1),
    Sketcher.Constraint("Equal", 1, 2),
    Sketcher.Constraint("Equal", 2, 3),
    Sketcher.Constraint("Equal", 3, 4),
    Sketcher.Constraint("Equal", 4, 5),
    Sketcher.Constraint("Equal", 5, 6),
    Sketcher.Constraint("Equal", 6, 7),
    Sketcher.Constraint("Symmetric", 0, 3, 1, 3, -1),
    Sketcher.Constraint("Symmetric", 2, 3, 5, 3, -1),
    Sketcher.Constraint("Symmetric", 3, 3, 6, 3, -1),
    Sketcher.Constraint("Symmetric", 4, 3, 7, 3, -1),
    Sketcher.Constraint("Horizontal", 2, 3, 3, 3),
    Sketcher.Constraint("Horizontal", 3, 3, 4, 3),
    Sketcher.Constraint("Diameter", 0, 2.8),
    Sketcher.Constraint("DistanceX", 8, 2, 8, 1, 55.6),
    Sketcher.Constraint("DistanceY", 9, 2, 9, 1, 29.3),
    Sketcher.Constraint("DistanceY", -1, 1, 0, 3, 11.0),
    Sketcher.Constraint("DistanceX", 2, 3, 3, 3, 22.0),
    Sketcher.Constraint("DistanceX", 3, 3, 4, 3, 22.0),
    Sketcher.Constraint("DistanceX", 8, 2, 2, 3, 9.0),
    Sketcher.Constraint("DistanceX", 0, 3, -1, 1, 50.5),
    Sketcher.Constraint("DistanceX", 2, 3, -1, 1, 99.85),
    Sketcher.Constraint("DistanceY", -1, 1, 8, 2, 14.65),
    Sketcher.Constraint("DistanceY", 5, 3, 2, 3, 34.75),
])
sketch14.setExpression("Constraints[21]", "Params.sketch14_diameter")
sketch14.setExpression("Constraints[22]", "Params.sketch14_width")
sketch14.setExpression("Constraints[23]", "Params.sketch14_height")
pocket6 = body.newObject("PartDesign::Pocket", "Pocket005")
pocket6.Profile = sketch14
pocket6.setExpression("Length", "Params.pocket6_length")
doc.recompute()

fillet2 = body.newObject("PartDesign::Fillet", "Fillet001")
fillet2.Base = (pocket6, edges_at(pocket6, [(11, -45, 8.5), (-11, -45, 8.5)]))
fillet2.setExpression("Radius", "Params.fillet2_radius")
doc.recompute()

fillet3 = body.newObject("PartDesign::Fillet", "Fillet002")
fillet3.Base = (fillet2, edges_at(fillet2, [
    (-19, -47.75, -11.5),
    (19, -47.75, 8.5),
    (-19, -47.75, 8.5),
    (19, -47.75, -11.5),
]))
fillet3.setExpression("Radius", "Params.fillet3_radius")

doc.recompute()
